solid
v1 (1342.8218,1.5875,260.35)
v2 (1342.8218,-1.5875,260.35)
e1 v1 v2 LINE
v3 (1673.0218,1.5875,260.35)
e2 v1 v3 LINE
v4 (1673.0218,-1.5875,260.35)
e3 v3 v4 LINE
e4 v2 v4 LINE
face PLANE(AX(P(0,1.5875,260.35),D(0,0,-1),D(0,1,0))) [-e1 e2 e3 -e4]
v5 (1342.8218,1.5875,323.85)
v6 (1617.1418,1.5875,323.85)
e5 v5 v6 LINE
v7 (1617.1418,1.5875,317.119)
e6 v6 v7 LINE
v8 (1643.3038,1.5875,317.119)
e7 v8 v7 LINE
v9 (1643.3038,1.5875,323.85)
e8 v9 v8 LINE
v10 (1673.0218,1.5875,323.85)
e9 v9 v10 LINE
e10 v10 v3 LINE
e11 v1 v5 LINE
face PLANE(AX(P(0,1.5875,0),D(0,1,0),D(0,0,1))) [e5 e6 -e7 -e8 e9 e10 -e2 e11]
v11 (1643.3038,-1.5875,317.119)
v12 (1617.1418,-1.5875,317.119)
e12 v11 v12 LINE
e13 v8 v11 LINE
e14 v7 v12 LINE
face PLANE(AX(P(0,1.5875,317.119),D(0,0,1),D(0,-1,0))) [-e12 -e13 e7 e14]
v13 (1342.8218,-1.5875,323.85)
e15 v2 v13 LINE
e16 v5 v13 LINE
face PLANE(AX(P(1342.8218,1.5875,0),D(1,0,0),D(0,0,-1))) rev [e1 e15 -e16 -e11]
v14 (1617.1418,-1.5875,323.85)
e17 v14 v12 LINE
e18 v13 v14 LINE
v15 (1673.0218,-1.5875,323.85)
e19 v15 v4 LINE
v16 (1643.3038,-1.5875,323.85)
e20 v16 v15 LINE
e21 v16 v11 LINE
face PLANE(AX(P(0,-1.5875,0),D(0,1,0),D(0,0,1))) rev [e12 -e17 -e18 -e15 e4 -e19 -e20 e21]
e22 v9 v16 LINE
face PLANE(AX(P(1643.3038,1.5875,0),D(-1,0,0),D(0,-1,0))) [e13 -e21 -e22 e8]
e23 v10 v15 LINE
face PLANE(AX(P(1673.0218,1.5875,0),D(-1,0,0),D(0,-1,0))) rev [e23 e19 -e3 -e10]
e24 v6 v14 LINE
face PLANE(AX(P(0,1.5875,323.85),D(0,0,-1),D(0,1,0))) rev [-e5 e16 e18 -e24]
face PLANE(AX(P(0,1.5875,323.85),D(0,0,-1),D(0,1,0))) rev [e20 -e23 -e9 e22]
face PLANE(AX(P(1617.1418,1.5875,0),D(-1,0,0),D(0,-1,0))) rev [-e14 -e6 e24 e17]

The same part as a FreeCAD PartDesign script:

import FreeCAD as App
import Part
import Sketcher

V = App.Vector
Q = App.Units.Quantity


def add_polygon(sketch, points):
    """Adds a closed chain of lines whose ends are joined by coincident constraints."""
    first, n = sketch.GeometryCount, len(points)
    for a, b in zip(points, points[1:] + points[:1]):
        sketch.addGeometry(Part.LineSegment(App.Vector(*a, 0), App.Vector(*b, 0)), False)
    for i in range(n):
        sketch.addConstraint(Sketcher.Constraint("Coincident", first + i, 2, first + (i + 1) % n, 1))

doc = App.newDocument("Part")
params = doc.addObject("Spreadsheet::Sheet", "Params")
for row, (alias, value) in enumerate([
    ("sketch1_width", "13 in"),
    ("sketch1_width2", "10.8 in"),
    ("sketch1_height", "2.5 in"),
    ("sketch1_width3", "1.17 in"),
    ("sketch1_height2", "0.265 in"),
    ("pad1_length", "0.125 in"),
], start=1):
    params.set(f"A{row}", alias)
    params.set(f"B{row}", "=" + value)
    params.setAlias(f"B{row}", alias)

body = doc.addObject("PartDesign::Body", "Body")

sketch1 = doc.addObject("Sketcher::SketchObject", "Sketch")
body.addObject(sketch1)
sketch1.AttachmentSupport = (doc.XZ_Plane, [""])
sketch1.MapMode = "FlatFace"
add_polygon(sketch1, [(1643, 317), (1643, 324), (1673, 324), (1673, 260), (1343, 260), (1343, 324), (1617, 324), (1617, 317)])
sketch1.addConstraint(Sketcher.Constraint("Vertical", 0))
sketch1.addConstraint(Sketcher.Constraint("Horizontal", 1))
sketch1.addConstraint(Sketcher.Constraint("Vertical", 2))
sketch1.addConstraint(Sketcher.Constraint("Horizontal", 3))
sketch1.addConstraint(Sketcher.Constraint("Vertical", 4))
sketch1.addConstraint(Sketcher.Constraint("Horizontal", 5))
sketch1.addConstraint(Sketcher.Constraint("Vertical", 6))
sketch1.addConstraint(Sketcher.Constraint("Horizontal", 7))
sketch1.addConstraint(Sketcher.Constraint("Horizontal", 1, 2, 4, 2))
sketch1.addConstraint(Sketcher.Constraint("DistanceX", 3, 2, 3, 1, Q("13 in")))
sketch1.addConstraint(Sketcher.Constraint("DistanceX", 5, 1, 5, 2, Q("10.8 in")))
sketch1.addConstraint(Sketcher.Constraint("DistanceY", 2, 2, 2, 1, Q("2.5 in")))
sketch1.addConstraint(Sketcher.Constraint("DistanceX", 1, 1, 1, 2, Q("1.17 in")))
sketch1.addConstraint(Sketcher.Constraint("DistanceY", 0, 1, 0, 2, Q("0.265 in")))
sketch1.addConstraint(Sketcher.Constraint("DistanceY", -1, 1, 0, 2, Q("12.75 in")))
sketch1.addConstraint(Sketcher.Constraint("DistanceX", -1, 1, 0, 2, Q("64.697 in")))
sketch1.setExpression("Constraints[17]", "Params.sketch1_width")
sketch1.setExpression("Constraints[18]", "Params.sketch1_width2")
sketch1.setExpression("Constraints[19]", "Params.sketch1_height")
sketch1.setExpression("Constraints[20]", "Params.sketch1_width3")
sketch1.setExpression("Constraints[21]", "Params.sketch1_height2")
pad1 = doc.addObject("PartDesign::Pad", "Pad")
body.addObject(pad1)
pad1.Profile = sketch1
pad1.setExpression("Length", "Params.pad1_length")
pad1.Midplane = True

doc.recompute()
